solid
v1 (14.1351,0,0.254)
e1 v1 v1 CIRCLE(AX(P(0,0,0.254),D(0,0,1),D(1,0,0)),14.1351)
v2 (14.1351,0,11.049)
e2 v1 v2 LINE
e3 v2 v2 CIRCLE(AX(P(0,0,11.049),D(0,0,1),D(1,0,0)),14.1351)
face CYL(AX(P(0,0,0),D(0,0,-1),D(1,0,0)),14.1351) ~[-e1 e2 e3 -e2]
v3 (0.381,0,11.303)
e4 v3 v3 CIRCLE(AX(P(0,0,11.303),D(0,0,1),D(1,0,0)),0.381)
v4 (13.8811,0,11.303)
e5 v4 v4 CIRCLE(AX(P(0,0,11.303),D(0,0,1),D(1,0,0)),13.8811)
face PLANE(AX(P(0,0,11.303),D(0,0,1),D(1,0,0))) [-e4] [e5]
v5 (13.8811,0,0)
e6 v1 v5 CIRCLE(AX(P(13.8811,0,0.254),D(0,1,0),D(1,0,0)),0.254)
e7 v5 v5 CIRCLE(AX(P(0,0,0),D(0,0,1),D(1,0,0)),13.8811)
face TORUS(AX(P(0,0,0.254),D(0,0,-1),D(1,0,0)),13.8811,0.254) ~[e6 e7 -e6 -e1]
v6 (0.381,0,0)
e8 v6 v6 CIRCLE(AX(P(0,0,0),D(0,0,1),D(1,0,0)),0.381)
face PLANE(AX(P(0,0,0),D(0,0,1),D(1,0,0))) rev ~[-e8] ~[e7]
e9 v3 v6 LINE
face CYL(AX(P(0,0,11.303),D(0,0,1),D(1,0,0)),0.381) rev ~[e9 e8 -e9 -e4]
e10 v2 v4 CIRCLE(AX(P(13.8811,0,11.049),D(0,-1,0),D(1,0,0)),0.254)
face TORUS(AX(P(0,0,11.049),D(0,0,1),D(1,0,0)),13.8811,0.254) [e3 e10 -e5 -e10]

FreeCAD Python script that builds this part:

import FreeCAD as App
import Part
import Sketcher
Q = App.Units.Quantity


def edges_at(feature, points):
    """Names of the edges that pass closest to the given points."""
    edges = feature.Shape.Edges
    near = lambda p: min(range(len(edges)), key=lambda i: edges[i].distToShape(Part.Vertex(*p))[0])
    return sorted({f"Edge{near(p) + 1}" for p in points})

doc = App.newDocument("Part")
body = doc.addObject("PartDesign::Body", "Body")

# Sketch on XY plane
sketch1 = doc.addObject("Sketcher::SketchObject", "Sketch")
body.addObject(sketch1)
sketch1.AttachmentSupport = (doc.XY_Plane, [""])
sketch1.MapMode = "FlatFace"
sketch1.addGeometry(Part.Circle(App.Vector(0, 0, 0), App.Vector(0, 0, 1), 14), False)
sketch1.addConstraint([
    Sketcher.Constraint("Coincident", 0, 3, -1, 1),
    Sketcher.Constraint("Diameter", 0, Q("1.113 in")),
])
pad1 = doc.addObject("PartDesign::Pad", "Pad")
body.addObject(pad1)
pad1.Profile = sketch1
pad1.Length = Q("0.445 in")
doc.recompute()

fillet = doc.addObject("PartDesign::Fillet", "Fillet")
body.addObject(fillet)
fillet.Base = (pad1, edges_at(pad1, [(-14.135, 0, 11.303), (-14.135, 0, 0)]))
fillet.Radius = Q("0.01 in")

# Sketch on XY plane
sketch2 = doc.addObject("Sketcher::SketchObject", "Sketch001")
body.addObject(sketch2)
sketch2.AttachmentSupport = (doc.XY_Plane, [""])
sketch2.MapMode = "FlatFace"
sketch2.AttachmentOffset = App.Placement(App.Vector(0, 0, 0.445 * 25.4), App.Rotation())
sketch2.addGeometry(Part.Circle(App.Vector(0, 0, 0), App.Vector(0, 0, 1), 0.38), False)
sketch2.addConstraint([
    Sketcher.Constraint("Coincident", 0, 3, -1, 1),
    Sketcher.Constraint("Diameter", 0, Q("0.03 in")),
])
pocket1 = doc.addObject("PartDesign::Pocket", "Pocket")
body.addObject(pocket1)
pocket1.Profile = sketch2
pocket1.Length = Q("1 in")

doc.recompute()
